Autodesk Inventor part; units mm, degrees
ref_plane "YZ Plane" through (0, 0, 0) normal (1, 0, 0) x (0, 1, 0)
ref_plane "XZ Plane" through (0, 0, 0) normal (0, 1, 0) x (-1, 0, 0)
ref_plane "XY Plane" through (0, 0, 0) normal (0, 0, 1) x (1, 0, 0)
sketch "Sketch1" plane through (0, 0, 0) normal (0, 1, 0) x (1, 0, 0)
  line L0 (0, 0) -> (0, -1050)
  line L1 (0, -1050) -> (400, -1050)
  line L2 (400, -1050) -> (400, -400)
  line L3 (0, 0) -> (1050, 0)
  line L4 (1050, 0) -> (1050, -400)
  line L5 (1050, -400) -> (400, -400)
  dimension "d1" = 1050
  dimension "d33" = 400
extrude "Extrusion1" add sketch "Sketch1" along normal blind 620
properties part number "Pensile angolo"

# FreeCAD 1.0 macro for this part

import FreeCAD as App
import Part
import Sketcher
from FreeCAD import Vector
Q = App.Units.Quantity


def add_polygon(sketch, points):
    """Adds a closed chain of lines whose ends are joined by coincident constraints."""
    first, n = sketch.GeometryCount, len(points)
    for a, b in zip(points, points[1:] + points[:1]):
        sketch.addGeometry(Part.LineSegment(App.Vector(*a, 0), App.Vector(*b, 0)), False)
    for i in range(n):
        sketch.addConstraint(Sketcher.Constraint("Coincident", first + i, 2, first + (i + 1) % n, 1))

doc = App.newDocument("Part")
body = doc.addObject("PartDesign::Body", "Body")

sketch1 = doc.addObject("Sketcher::SketchObject", "Sketch")
body.addObject(sketch1)
sketch1.AttachmentSupport = (doc.XZ_Plane, [""])
sketch1.MapMode = "FlatFace"
add_polygon(sketch1, [(1050, 0), (0, 0), (0, 1050), (400, 1050), (400, 400), (1050, 400)])
sketch1.addConstraint([
    Sketcher.Constraint("Horizontal", 0),
    Sketcher.Constraint("Vertical", 1),
    Sketcher.Constraint("Horizontal", 2),
    Sketcher.Constraint("Vertical", 3),
    Sketcher.Constraint("Horizontal", 4),
    Sketcher.Constraint("Vertical", 5),
    Sketcher.Constraint("Coincident", 0, 2, -1, 1),
    Sketcher.Constraint("Equal", 0, 1),
    Sketcher.Constraint("Equal", 4, 3),
    Sketcher.Constraint("DistanceX", 0, 2, 0, 1, Q("1050 mm")),
    Sketcher.Constraint("DistanceX", 2, 1, 2, 2, Q("400 mm")),
])
pad1 = doc.addObject("PartDesign::Pad", "Pad")
body.addObject(pad1)
pad1.Profile = sketch1
pad1.Length = 620
pad1.Reversed = True

doc.recompute()
